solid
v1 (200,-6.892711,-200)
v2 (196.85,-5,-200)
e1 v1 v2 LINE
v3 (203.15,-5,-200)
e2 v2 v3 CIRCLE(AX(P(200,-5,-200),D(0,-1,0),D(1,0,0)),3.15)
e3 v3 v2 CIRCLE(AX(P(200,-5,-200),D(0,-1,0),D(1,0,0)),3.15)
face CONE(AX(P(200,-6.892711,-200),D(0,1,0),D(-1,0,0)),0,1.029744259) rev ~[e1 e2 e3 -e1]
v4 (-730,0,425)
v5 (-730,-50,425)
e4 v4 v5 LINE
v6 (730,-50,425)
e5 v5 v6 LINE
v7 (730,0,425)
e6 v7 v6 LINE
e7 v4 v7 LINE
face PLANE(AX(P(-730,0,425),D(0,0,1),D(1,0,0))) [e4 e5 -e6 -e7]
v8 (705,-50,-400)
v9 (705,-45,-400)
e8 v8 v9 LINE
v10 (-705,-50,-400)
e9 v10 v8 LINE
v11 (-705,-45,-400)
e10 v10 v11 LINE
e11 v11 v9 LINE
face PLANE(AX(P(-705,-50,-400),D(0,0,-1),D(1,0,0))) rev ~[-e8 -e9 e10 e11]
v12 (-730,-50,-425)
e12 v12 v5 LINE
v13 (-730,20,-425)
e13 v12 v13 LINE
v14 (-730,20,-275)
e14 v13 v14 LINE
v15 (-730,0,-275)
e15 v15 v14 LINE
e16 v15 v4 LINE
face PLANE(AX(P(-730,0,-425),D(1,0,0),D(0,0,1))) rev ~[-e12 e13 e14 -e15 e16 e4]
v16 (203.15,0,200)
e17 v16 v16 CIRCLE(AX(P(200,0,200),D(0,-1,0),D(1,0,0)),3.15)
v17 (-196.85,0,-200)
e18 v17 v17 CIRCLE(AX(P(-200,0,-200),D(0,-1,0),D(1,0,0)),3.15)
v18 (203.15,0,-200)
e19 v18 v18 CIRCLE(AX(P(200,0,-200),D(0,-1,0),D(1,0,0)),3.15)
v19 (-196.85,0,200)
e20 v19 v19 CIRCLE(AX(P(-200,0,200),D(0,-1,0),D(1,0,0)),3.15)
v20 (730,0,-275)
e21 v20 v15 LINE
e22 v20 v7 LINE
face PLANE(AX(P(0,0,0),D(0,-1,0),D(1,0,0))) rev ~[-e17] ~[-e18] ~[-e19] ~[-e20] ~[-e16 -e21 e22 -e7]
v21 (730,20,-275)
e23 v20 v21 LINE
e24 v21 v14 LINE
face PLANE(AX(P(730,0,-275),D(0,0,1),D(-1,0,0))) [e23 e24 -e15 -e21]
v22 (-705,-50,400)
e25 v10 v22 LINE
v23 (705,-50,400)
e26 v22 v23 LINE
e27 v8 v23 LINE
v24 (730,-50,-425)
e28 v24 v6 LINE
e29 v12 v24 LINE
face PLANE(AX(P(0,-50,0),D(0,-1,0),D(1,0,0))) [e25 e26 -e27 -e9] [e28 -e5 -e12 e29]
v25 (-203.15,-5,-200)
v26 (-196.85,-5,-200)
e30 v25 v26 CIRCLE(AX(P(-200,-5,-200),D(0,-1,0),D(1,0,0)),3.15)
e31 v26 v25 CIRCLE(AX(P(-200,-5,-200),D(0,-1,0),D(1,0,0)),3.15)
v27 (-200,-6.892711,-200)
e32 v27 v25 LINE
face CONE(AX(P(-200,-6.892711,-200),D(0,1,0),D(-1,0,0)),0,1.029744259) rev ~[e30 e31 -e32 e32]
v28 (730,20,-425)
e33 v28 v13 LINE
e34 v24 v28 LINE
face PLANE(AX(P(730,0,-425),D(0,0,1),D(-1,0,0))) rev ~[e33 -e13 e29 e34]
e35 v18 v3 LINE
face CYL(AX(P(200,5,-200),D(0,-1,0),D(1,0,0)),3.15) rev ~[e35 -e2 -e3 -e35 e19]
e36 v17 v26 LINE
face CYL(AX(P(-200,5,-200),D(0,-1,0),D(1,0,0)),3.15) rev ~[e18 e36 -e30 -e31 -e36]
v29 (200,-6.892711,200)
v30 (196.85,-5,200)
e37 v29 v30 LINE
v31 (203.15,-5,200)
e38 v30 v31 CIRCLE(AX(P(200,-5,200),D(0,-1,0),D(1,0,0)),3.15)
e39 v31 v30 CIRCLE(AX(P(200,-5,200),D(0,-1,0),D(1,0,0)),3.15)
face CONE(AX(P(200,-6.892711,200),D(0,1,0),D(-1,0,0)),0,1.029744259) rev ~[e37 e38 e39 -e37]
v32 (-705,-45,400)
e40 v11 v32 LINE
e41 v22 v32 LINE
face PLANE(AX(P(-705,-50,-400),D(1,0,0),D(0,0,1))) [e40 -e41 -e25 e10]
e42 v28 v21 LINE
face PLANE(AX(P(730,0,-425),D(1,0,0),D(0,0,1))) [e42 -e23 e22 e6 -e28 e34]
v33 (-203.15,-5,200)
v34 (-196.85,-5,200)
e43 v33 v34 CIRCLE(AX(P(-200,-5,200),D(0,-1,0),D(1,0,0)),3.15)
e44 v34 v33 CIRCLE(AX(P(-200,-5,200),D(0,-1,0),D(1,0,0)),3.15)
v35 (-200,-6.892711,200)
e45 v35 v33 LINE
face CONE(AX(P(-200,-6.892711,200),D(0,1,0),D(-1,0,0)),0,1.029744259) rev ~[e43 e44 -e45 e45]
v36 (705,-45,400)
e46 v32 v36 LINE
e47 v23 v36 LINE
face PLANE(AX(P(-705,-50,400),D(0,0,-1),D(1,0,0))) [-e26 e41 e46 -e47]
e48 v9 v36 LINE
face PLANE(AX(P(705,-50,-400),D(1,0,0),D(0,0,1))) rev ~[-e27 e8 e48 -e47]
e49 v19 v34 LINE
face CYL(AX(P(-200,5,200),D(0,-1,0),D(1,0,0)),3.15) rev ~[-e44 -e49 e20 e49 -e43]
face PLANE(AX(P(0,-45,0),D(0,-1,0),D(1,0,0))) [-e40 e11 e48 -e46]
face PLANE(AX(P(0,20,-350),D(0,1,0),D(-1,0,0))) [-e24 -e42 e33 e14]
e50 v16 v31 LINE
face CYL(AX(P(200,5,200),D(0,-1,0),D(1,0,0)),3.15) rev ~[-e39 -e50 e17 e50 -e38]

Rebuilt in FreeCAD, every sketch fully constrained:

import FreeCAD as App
import Part
import Sketcher

V = App.Vector

doc = App.newDocument("Part")
body = doc.addObject("PartDesign::Body", "Body")

sketch1 = body.newObject("Sketcher::SketchObject", "Sketch")
sketch1.AttachmentSupport = (doc.getObject("XZ_Plane"), [""])
sketch1.MapMode = "FlatFace"
sketch1.addGeometry(Part.LineSegment(V(-730, 425, 0), V(-730, -425, 0)), False)
sketch1.addGeometry(Part.LineSegment(V(-730, -425, 0), V(730, -425, 0)), False)
sketch1.addGeometry(Part.LineSegment(V(730, -425, 0), V(730, 425, 0)), False)
sketch1.addGeometry(Part.LineSegment(V(730, 425, 0), V(-730, 425, 0)), False)
sketch1.addConstraint(Sketcher.Constraint("Coincident", 0, 2, 1, 1))
sketch1.addConstraint(Sketcher.Constraint("Coincident", 1, 2, 2, 1))
sketch1.addConstraint(Sketcher.Constraint("Coincident", 2, 2, 3, 1))
sketch1.addConstraint(Sketcher.Constraint("Coincident", 3, 2, 0, 1))
sketch1.addConstraint(Sketcher.Constraint("Vertical", 0))
sketch1.addConstraint(Sketcher.Constraint("Horizontal", 1))
sketch1.addConstraint(Sketcher.Constraint("Vertical", 2))
sketch1.addConstraint(Sketcher.Constraint("Horizontal", 3))
sketch1.addConstraint(Sketcher.Constraint("Symmetric", 0, 2, 2, 2, -1, 1))
sketch1.addConstraint(Sketcher.Constraint("DistanceX", 1, 1, 1, 2, 1460.0))
sketch1.addConstraint(Sketcher.Constraint("DistanceY", 0, 2, 0, 1, 850.0))
pad1 = body.newObject("PartDesign::Pad", "Pad")
pad1.Profile = sketch1
pad1.Length = 50

sketch2 = body.newObject("Sketcher::SketchObject", "Sketch001")
sketch2.AttachmentSupport = (doc.getObject("XZ_Plane"), [""])
sketch2.MapMode = "FlatFace"
sketch2.AttachmentOffset = App.Placement(V(0, 0, 50), App.Rotation())
sketch2.addGeometry(Part.LineSegment(V(-705, 400, 0), V(-705, -400, 0)), False)
sketch2.addGeometry(Part.LineSegment(V(-705, -400, 0), V(705, -400, 0)), False)
sketch2.addGeometry(Part.LineSegment(V(705, -400, 0), V(705, 400, 0)), False)
sketch2.addGeometry(Part.LineSegment(V(705, 400, 0), V(-705, 400, 0)), False)
sketch2.addConstraint(Sketcher.Constraint("Coincident", 0, 2, 1, 1))
sketch2.addConstraint(Sketcher.Constraint("Coincident", 1, 2, 2, 1))
sketch2.addConstraint(Sketcher.Constraint("Coincident", 2, 2, 3, 1))
sketch2.addConstraint(Sketcher.Constraint("Coincident", 3, 2, 0, 1))
sketch2.addConstraint(Sketcher.Constraint("Vertical", 0))
sketch2.addConstraint(Sketcher.Constraint("Horizontal", 1))
sketch2.addConstraint(Sketcher.Constraint("Vertical", 2))
sketch2.addConstraint(Sketcher.Constraint("Horizontal", 3))
sketch2.addConstraint(Sketcher.Constraint("Symmetric", 0, 2, 2, 2, -1, 1))
sketch2.addConstraint(Sketcher.Constraint("DistanceX", 1, 1, 1, 2, 1410.0))
sketch2.addConstraint(Sketcher.Constraint("DistanceY", 0, 2, 0, 1, 800.0))
pocket1 = body.newObject("PartDesign::Pocket", "Pocket")
pocket1.Profile = sketch2
pocket1.Length = 5

sketch3 = body.newObject("Sketcher::SketchObject", "Sketch002")
sketch3.AttachmentSupport = (doc.getObject("XZ_Plane"), [""])
sketch3.MapMode = "FlatFace"
sketch3.addGeometry(Part.Circle(V(200, 200, 0), V(0, 0, 1), 3.1), False)
sketch3.addGeometry(Part.Circle(V(-200, 200, 0), V(0, 0, 1), 3.1), False)
sketch3.addGeometry(Part.Circle(V(-200, -200, 0), V(0, 0, 1), 3.1), False)
sketch3.addGeometry(Part.Circle(V(200, -200, 0), V(0, 0, 1), 3.1), False)
sketch3.addConstraint(Sketcher.Constraint("Equal", 0, 1))
sketch3.addConstraint(Sketcher.Constraint("Equal", 1, 2))
sketch3.addConstraint(Sketcher.Constraint("Equal", 2, 3))
sketch3.addConstraint(Sketcher.Constraint("Symmetric", 0, 3, 2, 3, -1, 1))
sketch3.addConstraint(Sketcher.Constraint("Symmetric", 1, 3, 3, 3, -1, 1))
sketch3.addConstraint(Sketcher.Constraint("Symmetric", 0, 3, 1, 3, -2))
sketch3.addConstraint(Sketcher.Constraint("Diameter", 0, 6.3))
sketch3.addConstraint(Sketcher.Constraint("DistanceX", -1, 1, 0, 3, 200.0))
sketch3.addConstraint(Sketcher.Constraint("DistanceY", -1, 1, 0, 3, 200.0))
doc.recompute()
hole = body.newObject("PartDesign::Hole", "Hole")
hole.Profile = sketch3
hole.ThreadType = "None"
hole.Diameter = 6.3
hole.DepthType = "Dimension"
hole.Depth = 5
hole.DrillPoint = "Angled"
hole.DrillPointAngle = 118
hole.Reversed = True

sketch4 = body.newObject("Sketcher::SketchObject", "Sketch003")
sketch4.AttachmentSupport = (doc.getObject("XZ_Plane"), [""])
sketch4.MapMode = "FlatFace"
sketch4.addGeometry(Part.LineSegment(V(730, -275, 0), V(730, -425, 0)), False)
sketch4.addGeometry(Part.LineSegment(V(730, -425, 0), V(-730, -425, 0)), False)
sketch4.addGeometry(Part.LineSegment(V(-730, -425, 0), V(-730, -275, 0)), False)
sketch4.addGeometry(Part.LineSegment(V(-730, -275, 0), V(730, -275, 0)), False)
sketch4.addConstraint(Sketcher.Constraint("Coincident", 0, 2, 1, 1))
sketch4.addConstraint(Sketcher.Constraint("Coincident", 1, 2, 2, 1))
sketch4.addConstraint(Sketcher.Constraint("Coincident", 2, 2, 3, 1))
sketch4.addConstraint(Sketcher.Constraint("Coincident", 3, 2, 0, 1))
sketch4.addConstraint(Sketcher.Constraint("Vertical", 0))
sketch4.addConstraint(Sketcher.Constraint("Horizontal", 1))
sketch4.addConstraint(Sketcher.Constraint("Vertical", 2))
sketch4.addConstraint(Sketcher.Constraint("Horizontal", 3))
sketch4.addConstraint(Sketcher.Constraint("DistanceX", 1, 2, 1, 1, 1460.0))
sketch4.addConstraint(Sketcher.Constraint("DistanceY", 0, 2, 0, 1, 150.0))
sketch4.addConstraint(Sketcher.Constraint("DistanceX", -1, 1, 0, 2, 730.0))
sketch4.addConstraint(Sketcher.Constraint("DistanceY", 0, 2, -1, 1, 425.0))
pad2 = body.newObject("PartDesign::Pad", "Pad001")
pad2.Profile = sketch4
pad2.Length = 20
pad2.Reversed = True

doc.recompute()
